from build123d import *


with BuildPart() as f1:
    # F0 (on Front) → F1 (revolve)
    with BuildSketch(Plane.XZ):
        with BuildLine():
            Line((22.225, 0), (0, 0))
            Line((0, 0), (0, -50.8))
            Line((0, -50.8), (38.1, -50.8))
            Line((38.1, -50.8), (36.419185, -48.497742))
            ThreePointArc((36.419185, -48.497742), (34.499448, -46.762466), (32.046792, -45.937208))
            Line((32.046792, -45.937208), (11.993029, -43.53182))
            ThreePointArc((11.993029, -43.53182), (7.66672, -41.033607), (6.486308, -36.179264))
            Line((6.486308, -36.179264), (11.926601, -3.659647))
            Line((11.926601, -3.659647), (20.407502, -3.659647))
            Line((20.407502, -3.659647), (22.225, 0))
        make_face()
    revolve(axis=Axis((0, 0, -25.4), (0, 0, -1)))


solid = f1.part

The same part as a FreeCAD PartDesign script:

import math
import FreeCAD as App
import Part
import Sketcher

V = App.Vector
Q = App.Units.Quantity

doc = App.newDocument("Part")
body = doc.addObject("PartDesign::Body", "Body")

# Sketch on XZ plane
sketch1 = body.newObject("Sketcher::SketchObject", "Sketch")
sketch1.AttachmentSupport = (doc.getObject("XZ_Plane"), [""])
sketch1.MapMode = "FlatFace"
sketch1.addGeometry([
    Part.LineSegment(V(22.2, 0, 0), V(0, 0, 0)),  # 0
    Part.LineSegment(V(0, 0, 0), V(0, -50.8, 0)),  # 1
    Part.LineSegment(V(0, -50.8, 0), V(38.1, -50.8, 0)),  # 2
    Part.LineSegment(V(38.1, -50.8, 0), V(36.4, -48.5, 0)),  # 3
    Part.ArcOfCircle(Part.Circle(V(31.3, -52.2, 0), V(0, 0, 1), 6.4), math.radians(36), math.radians(83)),  # 4
    Part.LineSegment(V(32, -45.9, 0), V(12, -43.5, 0)),  # 5
    Part.ArcOfCircle(Part.Circle(V(12.7, -37.2, 0), V(0, 0, 1), 6.4), math.radians(171), math.radians(263)),  # 6
    Part.LineSegment(V(6.5, -36.2, 0), V(11.9, -3.7, 0)),  # 7
    Part.LineSegment(V(11.9, -3.7, 0), V(20.4, -3.7, 0)),  # 8
    Part.LineSegment(V(20.4, -3.7, 0), V(22.2, 0, 0)),  # 9
], False)
sketch1.addConstraint([
    Sketcher.Constraint("Coincident", 0, 2, 1, 1),
    Sketcher.Constraint("Coincident", 1, 2, 2, 1),
    Sketcher.Constraint("Coincident", 2, 2, 3, 1),
    Sketcher.Constraint("Tangent", 3, 2, 4, 1),
    Sketcher.Constraint("Tangent", 4, 2, 5, 1),
    Sketcher.Constraint("Tangent", 5, 2, 6, 2),
    Sketcher.Constraint("Tangent", 6, 1, 7, 1),
    Sketcher.Constraint("Coincident", 7, 2, 8, 1),
    Sketcher.Constraint("Coincident", 8, 2, 9, 1),
    Sketcher.Constraint("Coincident", 9, 2, 0, 1),
    Sketcher.Constraint("Horizontal", 0),
    Sketcher.Constraint("Vertical", 1),
    Sketcher.Constraint("Horizontal", 2),
    Sketcher.Constraint("Horizontal", 8),
    Sketcher.Constraint("Coincident", 0, 2, -1, 1),
    Sketcher.Constraint("Equal", 4, 6),
    Sketcher.Constraint("DistanceY", 1, 2, 1, 1, Q("2 in")),
    Sketcher.Constraint("Radius", 4, Q("0.25 in")),
    Sketcher.Constraint("DistanceX", 2, 1, 2, 2, Q("1.5 in")),
    Sketcher.Constraint("DistanceX", 0, 2, 0, 1, Q("0.875 in")),
    Sketcher.Constraint("DistanceX", 8, 1, 8, 2, 8.480901),
    Sketcher.Constraint("DistanceX", 6, 1, 5, 2, Q("0.2168 in")),
    Sketcher.Constraint("DistanceY", 6, 1, 7, 2, Q("1.2802999 in")),
    Sketcher.Constraint("DistanceX", -1, 1, 7, 2, 11.926601),
    Sketcher.Constraint("Distance", 3, 2.850532),
    Sketcher.Constraint("DistanceX", -1, 1, 5, 2, 11.993029),
    Sketcher.Constraint("DistanceY", 5, 2, -1, 1, 43.53182),
])
revolution = body.newObject("PartDesign::Revolution", "Revolution")
revolution.Profile = sketch1
revolution.ReferenceAxis = (sketch1, ["V_Axis"])
revolution.Angle = 360

doc.recompute()
